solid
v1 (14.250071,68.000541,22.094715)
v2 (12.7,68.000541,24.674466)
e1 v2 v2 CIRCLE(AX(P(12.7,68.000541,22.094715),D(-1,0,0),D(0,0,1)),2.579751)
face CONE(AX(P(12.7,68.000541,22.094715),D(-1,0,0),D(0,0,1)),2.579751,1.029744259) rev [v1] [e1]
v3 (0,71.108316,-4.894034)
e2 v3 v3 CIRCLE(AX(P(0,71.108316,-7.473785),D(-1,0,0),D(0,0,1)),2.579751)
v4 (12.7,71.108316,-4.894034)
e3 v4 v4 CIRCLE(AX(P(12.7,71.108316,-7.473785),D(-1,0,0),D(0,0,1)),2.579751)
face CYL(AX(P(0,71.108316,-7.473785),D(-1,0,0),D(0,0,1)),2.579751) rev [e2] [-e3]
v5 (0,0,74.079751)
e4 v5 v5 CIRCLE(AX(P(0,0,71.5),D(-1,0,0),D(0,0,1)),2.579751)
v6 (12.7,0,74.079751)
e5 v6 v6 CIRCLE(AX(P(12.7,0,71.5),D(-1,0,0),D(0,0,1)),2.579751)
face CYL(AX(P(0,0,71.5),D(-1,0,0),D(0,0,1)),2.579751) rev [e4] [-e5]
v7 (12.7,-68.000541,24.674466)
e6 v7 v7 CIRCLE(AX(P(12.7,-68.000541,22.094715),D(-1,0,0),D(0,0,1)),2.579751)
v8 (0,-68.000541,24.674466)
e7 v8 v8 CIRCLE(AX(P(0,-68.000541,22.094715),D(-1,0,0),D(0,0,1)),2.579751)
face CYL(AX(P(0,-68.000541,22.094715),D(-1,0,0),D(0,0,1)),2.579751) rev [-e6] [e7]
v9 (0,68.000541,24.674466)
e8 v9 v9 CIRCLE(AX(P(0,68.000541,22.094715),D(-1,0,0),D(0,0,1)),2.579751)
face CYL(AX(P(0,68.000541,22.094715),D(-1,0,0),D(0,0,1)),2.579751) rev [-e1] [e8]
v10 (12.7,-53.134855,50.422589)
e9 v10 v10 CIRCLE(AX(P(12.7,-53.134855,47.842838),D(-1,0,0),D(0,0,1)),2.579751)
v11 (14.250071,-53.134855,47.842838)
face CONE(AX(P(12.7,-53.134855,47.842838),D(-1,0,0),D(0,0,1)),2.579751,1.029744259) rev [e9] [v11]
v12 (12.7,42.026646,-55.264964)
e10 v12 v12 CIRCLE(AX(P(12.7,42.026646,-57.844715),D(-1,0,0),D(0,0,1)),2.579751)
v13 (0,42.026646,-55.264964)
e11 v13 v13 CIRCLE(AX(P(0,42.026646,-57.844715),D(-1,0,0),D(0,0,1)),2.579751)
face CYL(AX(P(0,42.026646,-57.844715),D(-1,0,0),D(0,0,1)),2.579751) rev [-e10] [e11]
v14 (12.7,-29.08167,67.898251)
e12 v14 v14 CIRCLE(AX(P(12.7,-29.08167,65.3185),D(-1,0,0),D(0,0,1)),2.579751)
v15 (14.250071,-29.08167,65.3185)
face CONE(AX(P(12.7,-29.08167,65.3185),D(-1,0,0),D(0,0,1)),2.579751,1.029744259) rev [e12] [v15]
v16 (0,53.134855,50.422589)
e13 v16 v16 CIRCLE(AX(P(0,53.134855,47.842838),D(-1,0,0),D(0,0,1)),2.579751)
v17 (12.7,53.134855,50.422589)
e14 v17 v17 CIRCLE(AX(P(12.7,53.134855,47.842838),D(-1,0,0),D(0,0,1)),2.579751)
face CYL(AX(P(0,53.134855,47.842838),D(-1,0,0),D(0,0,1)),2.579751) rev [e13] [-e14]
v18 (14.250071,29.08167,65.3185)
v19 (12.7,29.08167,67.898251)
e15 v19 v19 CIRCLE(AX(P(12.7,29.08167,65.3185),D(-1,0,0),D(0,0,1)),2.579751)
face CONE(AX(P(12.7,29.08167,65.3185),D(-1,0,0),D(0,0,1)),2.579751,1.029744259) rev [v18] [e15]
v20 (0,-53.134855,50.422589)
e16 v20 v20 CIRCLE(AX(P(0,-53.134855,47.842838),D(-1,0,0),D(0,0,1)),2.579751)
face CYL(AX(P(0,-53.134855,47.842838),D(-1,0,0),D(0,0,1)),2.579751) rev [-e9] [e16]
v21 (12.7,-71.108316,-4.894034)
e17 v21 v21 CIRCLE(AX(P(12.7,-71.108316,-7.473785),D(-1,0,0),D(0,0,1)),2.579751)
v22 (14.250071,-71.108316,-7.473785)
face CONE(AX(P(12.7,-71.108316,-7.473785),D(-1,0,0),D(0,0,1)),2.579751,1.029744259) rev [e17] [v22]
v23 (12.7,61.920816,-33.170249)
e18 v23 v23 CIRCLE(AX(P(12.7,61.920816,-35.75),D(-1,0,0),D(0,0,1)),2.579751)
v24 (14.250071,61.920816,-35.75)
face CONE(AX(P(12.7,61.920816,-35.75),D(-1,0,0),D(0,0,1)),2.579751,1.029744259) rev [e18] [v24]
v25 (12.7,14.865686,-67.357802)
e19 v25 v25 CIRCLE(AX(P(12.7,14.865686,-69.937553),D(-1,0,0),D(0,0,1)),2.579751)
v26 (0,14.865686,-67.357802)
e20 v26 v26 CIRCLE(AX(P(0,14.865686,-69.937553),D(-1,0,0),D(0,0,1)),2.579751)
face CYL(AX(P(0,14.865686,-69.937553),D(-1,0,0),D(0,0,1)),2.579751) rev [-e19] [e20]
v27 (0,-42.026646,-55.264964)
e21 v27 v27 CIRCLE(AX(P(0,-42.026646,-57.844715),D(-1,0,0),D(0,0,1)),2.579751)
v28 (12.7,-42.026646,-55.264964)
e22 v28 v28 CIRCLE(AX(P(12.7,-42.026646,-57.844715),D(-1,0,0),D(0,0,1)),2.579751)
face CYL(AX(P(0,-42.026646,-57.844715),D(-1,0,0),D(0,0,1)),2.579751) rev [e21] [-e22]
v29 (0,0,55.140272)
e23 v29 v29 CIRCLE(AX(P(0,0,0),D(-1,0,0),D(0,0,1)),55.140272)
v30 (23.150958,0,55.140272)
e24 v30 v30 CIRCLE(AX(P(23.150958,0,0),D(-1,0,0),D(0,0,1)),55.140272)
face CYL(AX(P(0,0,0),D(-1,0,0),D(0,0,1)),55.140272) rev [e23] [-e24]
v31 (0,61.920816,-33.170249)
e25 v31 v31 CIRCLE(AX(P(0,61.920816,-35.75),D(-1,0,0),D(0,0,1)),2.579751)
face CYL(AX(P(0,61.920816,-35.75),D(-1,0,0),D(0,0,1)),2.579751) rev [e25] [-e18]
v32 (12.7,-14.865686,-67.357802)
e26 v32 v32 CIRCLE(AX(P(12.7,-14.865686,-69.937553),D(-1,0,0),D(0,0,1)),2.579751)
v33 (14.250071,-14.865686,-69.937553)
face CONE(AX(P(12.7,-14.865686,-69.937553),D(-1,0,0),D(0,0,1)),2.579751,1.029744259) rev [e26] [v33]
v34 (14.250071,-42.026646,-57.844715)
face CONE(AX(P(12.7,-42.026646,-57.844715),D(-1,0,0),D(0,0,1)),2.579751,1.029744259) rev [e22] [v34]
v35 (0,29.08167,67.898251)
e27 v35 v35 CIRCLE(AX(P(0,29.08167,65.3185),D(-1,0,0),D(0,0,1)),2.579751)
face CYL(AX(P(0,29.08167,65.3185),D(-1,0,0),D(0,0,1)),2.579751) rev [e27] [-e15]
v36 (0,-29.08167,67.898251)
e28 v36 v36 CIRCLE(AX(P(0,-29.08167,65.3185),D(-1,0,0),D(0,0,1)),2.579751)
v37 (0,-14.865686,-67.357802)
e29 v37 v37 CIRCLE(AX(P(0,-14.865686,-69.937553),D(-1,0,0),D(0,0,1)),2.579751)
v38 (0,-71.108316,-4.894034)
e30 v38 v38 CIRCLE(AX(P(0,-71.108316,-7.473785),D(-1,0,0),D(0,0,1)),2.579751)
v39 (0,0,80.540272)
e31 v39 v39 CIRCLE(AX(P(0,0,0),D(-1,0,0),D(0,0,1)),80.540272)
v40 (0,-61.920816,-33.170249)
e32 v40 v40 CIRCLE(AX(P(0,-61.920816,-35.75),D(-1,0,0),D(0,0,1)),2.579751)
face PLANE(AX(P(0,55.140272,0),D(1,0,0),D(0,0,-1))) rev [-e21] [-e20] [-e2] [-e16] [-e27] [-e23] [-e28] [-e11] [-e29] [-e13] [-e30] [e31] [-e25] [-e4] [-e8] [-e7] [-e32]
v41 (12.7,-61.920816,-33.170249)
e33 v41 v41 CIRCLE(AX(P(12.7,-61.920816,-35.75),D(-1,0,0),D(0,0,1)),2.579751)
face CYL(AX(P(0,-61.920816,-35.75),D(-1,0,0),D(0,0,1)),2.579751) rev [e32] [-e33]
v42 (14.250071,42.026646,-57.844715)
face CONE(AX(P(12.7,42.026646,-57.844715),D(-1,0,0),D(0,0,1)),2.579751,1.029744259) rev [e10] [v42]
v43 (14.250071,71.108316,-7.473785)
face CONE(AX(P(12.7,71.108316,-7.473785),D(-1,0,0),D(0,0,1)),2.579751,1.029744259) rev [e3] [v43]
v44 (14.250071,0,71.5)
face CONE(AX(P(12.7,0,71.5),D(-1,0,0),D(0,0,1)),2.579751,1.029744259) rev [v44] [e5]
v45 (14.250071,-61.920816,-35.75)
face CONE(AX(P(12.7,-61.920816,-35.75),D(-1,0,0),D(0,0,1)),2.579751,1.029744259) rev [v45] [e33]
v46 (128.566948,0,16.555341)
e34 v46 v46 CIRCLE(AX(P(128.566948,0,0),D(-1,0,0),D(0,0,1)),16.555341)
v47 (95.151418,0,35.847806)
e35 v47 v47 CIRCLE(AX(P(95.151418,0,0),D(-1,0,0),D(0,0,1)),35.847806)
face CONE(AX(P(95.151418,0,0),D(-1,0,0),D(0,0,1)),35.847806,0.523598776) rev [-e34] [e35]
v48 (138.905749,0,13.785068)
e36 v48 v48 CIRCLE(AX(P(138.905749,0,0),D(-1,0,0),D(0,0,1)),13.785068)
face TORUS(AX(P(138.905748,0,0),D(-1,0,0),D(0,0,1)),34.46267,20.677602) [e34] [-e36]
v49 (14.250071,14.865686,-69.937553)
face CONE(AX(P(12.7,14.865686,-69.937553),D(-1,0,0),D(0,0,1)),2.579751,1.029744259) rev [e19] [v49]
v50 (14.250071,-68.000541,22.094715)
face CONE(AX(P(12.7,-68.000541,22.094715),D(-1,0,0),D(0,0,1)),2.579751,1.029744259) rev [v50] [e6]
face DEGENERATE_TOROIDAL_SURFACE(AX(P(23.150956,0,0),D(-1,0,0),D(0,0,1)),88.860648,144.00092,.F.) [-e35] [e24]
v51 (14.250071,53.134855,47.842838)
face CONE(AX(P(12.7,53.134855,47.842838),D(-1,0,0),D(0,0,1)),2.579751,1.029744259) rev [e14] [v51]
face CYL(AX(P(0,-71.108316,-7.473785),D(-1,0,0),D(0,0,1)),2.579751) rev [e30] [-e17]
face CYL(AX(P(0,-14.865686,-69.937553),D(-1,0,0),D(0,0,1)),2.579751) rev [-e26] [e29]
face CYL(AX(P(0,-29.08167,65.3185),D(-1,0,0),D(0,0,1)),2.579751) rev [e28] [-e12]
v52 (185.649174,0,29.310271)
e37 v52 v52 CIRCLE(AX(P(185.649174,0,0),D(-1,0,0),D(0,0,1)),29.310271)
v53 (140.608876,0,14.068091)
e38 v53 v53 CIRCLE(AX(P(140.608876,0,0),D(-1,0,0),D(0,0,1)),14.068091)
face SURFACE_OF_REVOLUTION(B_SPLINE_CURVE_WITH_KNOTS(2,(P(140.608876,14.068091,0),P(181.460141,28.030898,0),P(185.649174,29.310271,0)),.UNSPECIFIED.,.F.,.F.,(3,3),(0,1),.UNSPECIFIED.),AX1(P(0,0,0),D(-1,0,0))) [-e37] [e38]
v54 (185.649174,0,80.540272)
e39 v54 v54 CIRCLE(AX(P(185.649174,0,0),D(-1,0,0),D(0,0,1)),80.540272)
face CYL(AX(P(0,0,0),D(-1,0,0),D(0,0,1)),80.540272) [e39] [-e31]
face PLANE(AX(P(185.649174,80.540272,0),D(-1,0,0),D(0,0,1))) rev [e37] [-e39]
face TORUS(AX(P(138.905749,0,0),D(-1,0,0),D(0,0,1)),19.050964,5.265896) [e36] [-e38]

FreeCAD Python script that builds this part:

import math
import FreeCAD as App
import Part
import Sketcher
Q = App.Units.Quantity


def add_polygon(sketch, points):
    """Adds a closed chain of lines whose ends are joined by coincident constraints."""
    first, n = sketch.GeometryCount, len(points)
    for a, b in zip(points, points[1:] + points[:1]):
        sketch.addGeometry(Part.LineSegment(App.Vector(*a, 0), App.Vector(*b, 0)), False)
    for i in range(n):
        sketch.addConstraint(Sketcher.Constraint("Coincident", first + i, 2, first + (i + 1) % n, 1))

doc = App.newDocument("Part")
body = doc.addObject("PartDesign::Body", "Body")

# Sketch on XY plane
sketch1 = doc.addObject("Sketcher::SketchObject", "Sketch")
body.addObject(sketch1)
sketch1.AttachmentSupport = (doc.XY_Plane, [""])
sketch1.MapMode = "FlatFace"
sketch1.addGeometry([
    Part.LineSegment(App.Vector(0, 55.140272, 0), App.Vector(23.150958, 55.140272, 0)),  # 0
    Part.ArcOfCircle(Part.Circle(App.Vector(23.150956, -88.860648, 0), App.Vector(0, 0, 1), 144.00092), math.radians(59.999999), math.radians(89.999999)),  # 1
    Part.LineSegment(App.Vector(95.151418, 35.847806, 0), App.Vector(128.566948, 16.555341, 0)),  # 2
    Part.ArcOfCircle(Part.Circle(App.Vector(138.905748, 34.46267, 0), App.Vector(0, 0, 1), 20.677602), math.radians(-119.999998), math.radians(-89.999998)),  # 3
    Part.ArcOfCircle(Part.Circle(App.Vector(138.905749, 19.050964, 0), App.Vector(0, 0, 1), 5.265896), math.radians(-90), math.radians(-71.129768)),  # 4
    Part.BSplineCurve([App.Vector(140.608876, 14.068091, 0), App.Vector(181.460141, 28.030898, 0), App.Vector(185.649174, 29.310271, 0)], [3, 3], [0, 1], False, 2, [1, 1, 1], False),  # 5
    Part.LineSegment(App.Vector(185.649174, 29.310271, 0), App.Vector(185.649174, 80.540272, 0)),  # 6
    Part.LineSegment(App.Vector(185.649174, 80.540272, 0), App.Vector(0, 80.540272, 0)),  # 7
    Part.LineSegment(App.Vector(0, 80.540272, 0), App.Vector(0, 55.140272, 0)),  # 8
], False)
sketch1.addConstraint([
    Sketcher.Constraint("Block", 5),
    Sketcher.Constraint("Tangent", 0, 2, 1, 2),
    Sketcher.Constraint("Tangent", 1, 1, 2, 1),
    Sketcher.Constraint("Tangent", 2, 2, 3, 1),
    Sketcher.Constraint("Tangent", 3, 2, 4, 1),
    Sketcher.Constraint("Coincident", 4, 2, 5, 1),
    Sketcher.Constraint("Coincident", 5, 2, 6, 1),
    Sketcher.Constraint("Coincident", 6, 2, 7, 1),
    Sketcher.Constraint("Coincident", 7, 2, 8, 1),
    Sketcher.Constraint("Coincident", 8, 2, 0, 1),
    Sketcher.Constraint("Horizontal", 0),
    Sketcher.Constraint("Vertical", 6),
    Sketcher.Constraint("Horizontal", 7),
    Sketcher.Constraint("Vertical", 8),
    Sketcher.Constraint("PointOnObject", 7, 2, -2),
    Sketcher.Constraint("Vertical", 3, 3, 4, 3),
    Sketcher.Constraint("DistanceY", 8, 2, 8, 1, Q("1 in")),
    Sketcher.Constraint("Angle", 2, Q("-30 deg")),
    Sketcher.Constraint("Radius", 3, Q("20.677602 mm")),
    Sketcher.Constraint("Radius", 1, Q("144.00092 mm")),
    Sketcher.Constraint("DistanceY", 6, 1, 6, 2, Q("51.230001 mm")),
    Sketcher.Constraint("Radius", 4, Q("5.265896 mm")),
    Sketcher.Constraint("Distance", 2, Q("38.58493 mm")),
])
revolution = doc.addObject("PartDesign::Revolution", "Revolution")
body.addObject(revolution)
revolution.Profile = sketch1
revolution.ReferenceAxis = (sketch1, ["H_Axis"])
revolution.Angle = 360

# Sketch on XZ plane
sketch2 = doc.addObject("Sketcher::SketchObject", "Sketch001")
body.addObject(sketch2)
sketch2.AttachmentSupport = (doc.XZ_Plane, [""])
sketch2.MapMode = "FlatFace"
add_polygon(sketch2, [(14.3, 71.5), (0, 71.5), (0, 74.1), (12.7, 74.1)])  # lines 0-3
sketch2.addGeometry(Part.LineSegment(App.Vector(0, 71.5, 0), App.Vector(14.3, 71.5, 0)), True)  # axis
sketch2.addConstraint([
    Sketcher.Constraint("Horizontal", 0),
    Sketcher.Constraint("Vertical", 1),
    Sketcher.Constraint("Horizontal", 2),
    Sketcher.Constraint("Horizontal", 4),
    Sketcher.Constraint("Coincident", 4, 1, 0, 2),
    Sketcher.Constraint("PointOnObject", 0, 2, -2),
    Sketcher.Constraint("Equal", 0, 4),
    Sketcher.Constraint("DistanceX", 2, 1, 2, 2, Q("0.5 in")),
    Sketcher.Constraint("Angle", 3, Q("-59 deg")),
    Sketcher.Constraint("DistanceX", 0, 2, 0, 1, Q("14.250071 mm")),
    Sketcher.Constraint("DistanceY", -1, 1, 0, 2, Q("71.5 mm")),
])
groove = doc.addObject("PartDesign::Groove", "Groove")
body.addObject(groove)
groove.Profile = sketch2
groove.ReferenceAxis = (sketch2, ["Axis0"])
groove.Angle = 360
doc.recompute()

polarpattern = doc.addObject("PartDesign::PolarPattern", "PolarPattern")
body.addObject(polarpattern)
polarpattern.Originals = [groove]
polarpattern.Axis = (doc.X_Axis, [""])
polarpattern.Angle = 360
polarpattern.Occurrences = 15
body.Tip = polarpattern

doc.recompute()
